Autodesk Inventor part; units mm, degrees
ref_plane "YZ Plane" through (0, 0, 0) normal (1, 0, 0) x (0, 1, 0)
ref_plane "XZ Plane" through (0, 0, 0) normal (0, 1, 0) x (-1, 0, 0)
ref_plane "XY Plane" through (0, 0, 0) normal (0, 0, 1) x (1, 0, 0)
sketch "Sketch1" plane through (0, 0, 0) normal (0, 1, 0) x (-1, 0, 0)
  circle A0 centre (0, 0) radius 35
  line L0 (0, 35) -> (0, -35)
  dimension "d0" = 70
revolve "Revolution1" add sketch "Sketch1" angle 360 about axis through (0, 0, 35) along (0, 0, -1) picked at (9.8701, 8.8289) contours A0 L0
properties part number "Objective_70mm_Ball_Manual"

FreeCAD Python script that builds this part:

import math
import FreeCAD as App
import Part
import Sketcher
from FreeCAD import Vector
Q = App.Units.Quantity

doc = App.newDocument("Part")
body = doc.addObject("PartDesign::Body", "Body")

sketch1 = doc.addObject("Sketcher::SketchObject", "Sketch")
body.addObject(sketch1)
sketch1.AttachmentSupport = (doc.XZ_Plane, [""])
sketch1.MapMode = "FlatFace"
sketch1.addGeometry(Part.ArcOfCircle(Part.Circle(Vector(0, 0, 0), Vector(0, 0, 1), 35), math.radians(90), math.radians(270)), False)
sketch1.addGeometry(Part.LineSegment(Vector(0, 35, 0), Vector(0, -35, 0)), False)
sketch1.addConstraint(Sketcher.Constraint("Coincident", 0, 1, 1, 1))
sketch1.addConstraint(Sketcher.Constraint("Coincident", 1, 2, 0, 2))
sketch1.addConstraint(Sketcher.Constraint("Vertical", 1))
sketch1.addConstraint(Sketcher.Constraint("Coincident", 0, 3, -1, 1))
sketch1.addConstraint(Sketcher.Constraint("PointOnObject", 0, 1, -2))
sketch1.addConstraint(Sketcher.Constraint("Radius", 0, Q("35 mm")))
revolution = doc.addObject("PartDesign::Revolution", "Revolution")
body.addObject(revolution)
revolution.Profile = sketch1
revolution.ReferenceAxis = (sketch1, ["V_Axis"])
revolution.Angle = 360

doc.recompute()
